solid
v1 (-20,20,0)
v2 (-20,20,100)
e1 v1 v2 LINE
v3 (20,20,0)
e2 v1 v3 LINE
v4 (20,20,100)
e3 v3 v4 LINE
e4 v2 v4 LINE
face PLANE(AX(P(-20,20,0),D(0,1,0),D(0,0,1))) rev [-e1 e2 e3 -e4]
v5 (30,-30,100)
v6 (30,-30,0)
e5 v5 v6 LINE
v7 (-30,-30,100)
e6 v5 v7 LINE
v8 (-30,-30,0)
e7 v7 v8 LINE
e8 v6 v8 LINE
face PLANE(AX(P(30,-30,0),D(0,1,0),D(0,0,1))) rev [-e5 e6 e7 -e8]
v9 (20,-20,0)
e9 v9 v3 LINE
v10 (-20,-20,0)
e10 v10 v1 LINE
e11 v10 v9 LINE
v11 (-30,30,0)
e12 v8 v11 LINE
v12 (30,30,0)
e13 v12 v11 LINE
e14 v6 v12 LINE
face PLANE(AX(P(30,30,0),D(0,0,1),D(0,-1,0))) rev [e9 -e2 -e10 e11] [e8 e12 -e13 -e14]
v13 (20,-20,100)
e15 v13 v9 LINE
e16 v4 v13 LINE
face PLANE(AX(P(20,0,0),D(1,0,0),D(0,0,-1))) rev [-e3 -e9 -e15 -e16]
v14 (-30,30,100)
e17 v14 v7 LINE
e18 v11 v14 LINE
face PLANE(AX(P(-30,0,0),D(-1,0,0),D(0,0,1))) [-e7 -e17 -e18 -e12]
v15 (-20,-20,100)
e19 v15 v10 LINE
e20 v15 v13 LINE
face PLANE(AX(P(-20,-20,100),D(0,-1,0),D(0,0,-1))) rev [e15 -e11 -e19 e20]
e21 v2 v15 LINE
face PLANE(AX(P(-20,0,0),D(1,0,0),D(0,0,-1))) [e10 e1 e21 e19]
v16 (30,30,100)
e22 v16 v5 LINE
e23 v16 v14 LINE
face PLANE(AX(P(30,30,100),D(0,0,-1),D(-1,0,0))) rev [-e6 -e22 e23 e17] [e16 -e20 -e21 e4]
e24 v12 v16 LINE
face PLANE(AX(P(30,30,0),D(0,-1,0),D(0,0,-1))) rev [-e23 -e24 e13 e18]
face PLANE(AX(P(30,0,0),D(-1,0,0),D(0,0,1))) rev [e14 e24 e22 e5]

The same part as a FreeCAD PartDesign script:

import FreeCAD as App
import Part
import Sketcher

V = App.Vector
Q = App.Units.Quantity


def add_polygon(sketch, points):
    """Adds a closed chain of lines whose ends are joined by coincident constraints."""
    first, n = sketch.GeometryCount, len(points)
    for a, b in zip(points, points[1:] + points[:1]):
        sketch.addGeometry(Part.LineSegment(App.Vector(*a, 0), App.Vector(*b, 0)), False)
    for i in range(n):
        sketch.addConstraint(Sketcher.Constraint("Coincident", first + i, 2, first + (i + 1) % n, 1))

doc = App.newDocument("Part")
params = doc.addObject("Spreadsheet::Sheet", "Params")
for row, (alias, value) in enumerate([
    ("sketch1_width", "60 mm"),
    ("sketch1_height", "100 mm"),
    ("pad1_length", "60 mm"),
    ("sketch2_width", "40 mm"),
    ("sketch2_height", "100 mm"),
    ("pocket1_length", "40 mm"),
], start=1):
    params.set(f"A{row}", alias)
    params.set(f"B{row}", "=" + value)
    params.setAlias(f"B{row}", alias)

body = doc.addObject("PartDesign::Body", "Body")

# Sketch on YZ plane
sketch1 = body.newObject("Sketcher::SketchObject", "Sketch")
sketch1.AttachmentSupport = (doc.getObject("YZ_Plane"), [""])
sketch1.MapMode = "FlatFace"
add_polygon(sketch1, [(30, 100), (-30, 100), (-30, 0), (30, 0)])  # lines 0-3
sketch1.addConstraint([
    Sketcher.Constraint("Horizontal", 0),
    Sketcher.Constraint("Vertical", 1),
    Sketcher.Constraint("Horizontal", 2),
    Sketcher.Constraint("Vertical", 3),
    Sketcher.Constraint("Symmetric", 1, 2, 2, 2, -1, 1),
    Sketcher.Constraint("DistanceX", 0, 2, 0, 1, Q("60 mm")),
    Sketcher.Constraint("DistanceY", 1, 2, 1, 1, Q("100 mm")),
])
sketch1.setExpression("Constraints[9]", "Params.sketch1_width")
sketch1.setExpression("Constraints[10]", "Params.sketch1_height")
pad1 = body.newObject("PartDesign::Pad", "Pad")
pad1.Profile = sketch1
pad1.setExpression("Length", "Params.pad1_length")
pad1.Midplane = True

# Sketch on YZ plane
sketch2 = body.newObject("Sketcher::SketchObject", "Sketch001")
sketch2.AttachmentSupport = (doc.getObject("YZ_Plane"), [""])
sketch2.MapMode = "FlatFace"
add_polygon(sketch2, [(20, 100), (-20, 100), (-20, 0), (20, 0)])  # lines 0-3
sketch2.addConstraint([
    Sketcher.Constraint("Horizontal", 0),
    Sketcher.Constraint("Vertical", 1),
    Sketcher.Constraint("Horizontal", 2),
    Sketcher.Constraint("Vertical", 3),
    Sketcher.Constraint("Symmetric", 1, 2, 2, 2, -1, 1),
    Sketcher.Constraint("DistanceX", 0, 2, 0, 1, Q("40 mm")),
    Sketcher.Constraint("DistanceY", 1, 2, 1, 1, Q("100 mm")),
])
sketch2.setExpression("Constraints[9]", "Params.sketch2_width")
sketch2.setExpression("Constraints[10]", "Params.sketch2_height")
pocket1 = body.newObject("PartDesign::Pocket", "Pocket")
pocket1.Profile = sketch2
pocket1.setExpression("Length", "Params.pocket1_length")
pocket1.Midplane = True

doc.recompute()
